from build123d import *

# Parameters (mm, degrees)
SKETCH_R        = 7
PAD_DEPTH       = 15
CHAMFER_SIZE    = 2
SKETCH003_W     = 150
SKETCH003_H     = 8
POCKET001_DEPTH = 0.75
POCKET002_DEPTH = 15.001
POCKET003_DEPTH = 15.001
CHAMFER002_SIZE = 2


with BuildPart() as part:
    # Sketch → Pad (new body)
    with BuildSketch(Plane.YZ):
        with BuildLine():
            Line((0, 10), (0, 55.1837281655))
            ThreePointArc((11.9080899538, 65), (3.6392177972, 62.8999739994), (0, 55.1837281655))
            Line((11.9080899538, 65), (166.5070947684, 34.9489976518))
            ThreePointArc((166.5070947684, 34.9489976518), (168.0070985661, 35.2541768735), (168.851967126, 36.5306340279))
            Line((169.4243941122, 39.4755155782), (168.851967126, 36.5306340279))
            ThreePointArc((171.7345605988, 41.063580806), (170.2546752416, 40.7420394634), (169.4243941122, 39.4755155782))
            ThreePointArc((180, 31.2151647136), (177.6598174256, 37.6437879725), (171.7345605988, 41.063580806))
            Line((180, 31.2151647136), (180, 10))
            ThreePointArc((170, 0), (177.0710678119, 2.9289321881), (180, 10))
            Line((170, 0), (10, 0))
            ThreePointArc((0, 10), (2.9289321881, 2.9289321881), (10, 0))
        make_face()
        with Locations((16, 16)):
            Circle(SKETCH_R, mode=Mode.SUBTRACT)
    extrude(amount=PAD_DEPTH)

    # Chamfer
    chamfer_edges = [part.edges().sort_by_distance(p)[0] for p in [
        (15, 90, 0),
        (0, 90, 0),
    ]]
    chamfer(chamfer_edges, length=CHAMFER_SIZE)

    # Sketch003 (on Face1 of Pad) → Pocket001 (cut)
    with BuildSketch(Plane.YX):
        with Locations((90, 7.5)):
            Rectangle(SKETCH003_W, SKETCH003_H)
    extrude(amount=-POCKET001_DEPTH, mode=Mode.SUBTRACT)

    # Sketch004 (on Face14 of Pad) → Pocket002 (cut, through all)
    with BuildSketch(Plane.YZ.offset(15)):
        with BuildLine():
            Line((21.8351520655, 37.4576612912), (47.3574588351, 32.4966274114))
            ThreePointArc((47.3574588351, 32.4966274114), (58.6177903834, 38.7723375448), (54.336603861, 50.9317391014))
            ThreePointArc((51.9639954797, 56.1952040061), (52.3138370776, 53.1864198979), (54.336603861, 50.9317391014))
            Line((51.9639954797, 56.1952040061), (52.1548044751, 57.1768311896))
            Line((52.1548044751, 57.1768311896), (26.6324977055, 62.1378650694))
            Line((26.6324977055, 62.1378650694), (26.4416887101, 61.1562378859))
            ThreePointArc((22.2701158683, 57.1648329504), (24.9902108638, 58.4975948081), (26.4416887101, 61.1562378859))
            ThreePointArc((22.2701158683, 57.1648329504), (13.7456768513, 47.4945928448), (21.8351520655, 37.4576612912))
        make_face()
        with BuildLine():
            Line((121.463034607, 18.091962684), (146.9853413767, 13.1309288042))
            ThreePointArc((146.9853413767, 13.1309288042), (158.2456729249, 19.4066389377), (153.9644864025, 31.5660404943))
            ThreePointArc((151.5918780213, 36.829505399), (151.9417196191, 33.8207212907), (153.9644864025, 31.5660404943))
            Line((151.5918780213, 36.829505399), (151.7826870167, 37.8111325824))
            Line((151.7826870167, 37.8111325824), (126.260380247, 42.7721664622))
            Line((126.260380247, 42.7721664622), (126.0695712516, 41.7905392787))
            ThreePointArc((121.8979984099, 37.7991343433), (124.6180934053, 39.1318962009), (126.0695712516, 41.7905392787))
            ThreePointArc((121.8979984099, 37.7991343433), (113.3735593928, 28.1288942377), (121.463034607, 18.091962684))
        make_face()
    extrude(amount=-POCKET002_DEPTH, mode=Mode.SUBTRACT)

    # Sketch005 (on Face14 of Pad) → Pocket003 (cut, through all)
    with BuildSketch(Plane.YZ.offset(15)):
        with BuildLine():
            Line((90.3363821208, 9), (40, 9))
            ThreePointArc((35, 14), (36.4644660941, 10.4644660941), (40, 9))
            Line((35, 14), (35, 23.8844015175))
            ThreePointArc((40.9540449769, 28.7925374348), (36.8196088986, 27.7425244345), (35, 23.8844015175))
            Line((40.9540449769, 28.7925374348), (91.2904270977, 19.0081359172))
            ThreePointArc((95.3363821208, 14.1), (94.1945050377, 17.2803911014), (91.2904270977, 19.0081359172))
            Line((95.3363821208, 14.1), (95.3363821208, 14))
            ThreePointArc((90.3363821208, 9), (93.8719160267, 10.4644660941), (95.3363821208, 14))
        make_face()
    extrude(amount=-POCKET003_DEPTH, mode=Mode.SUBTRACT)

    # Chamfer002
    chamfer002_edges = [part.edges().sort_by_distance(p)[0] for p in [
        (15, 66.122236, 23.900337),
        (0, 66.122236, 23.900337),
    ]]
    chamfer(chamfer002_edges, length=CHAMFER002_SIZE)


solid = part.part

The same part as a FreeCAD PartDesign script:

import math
import FreeCAD as App
import Part
import Sketcher

V = App.Vector
Q = App.Units.Quantity


def edges_at(feature, points):
    """Names of the edges that pass closest to the given points."""
    edges = feature.Shape.Edges
    near = lambda p: min(range(len(edges)), key=lambda i: edges[i].distToShape(Part.Vertex(*p))[0])
    return sorted({f"Edge{near(p) + 1}" for p in points})

doc = App.newDocument("Part")
params = doc.addObject("Spreadsheet::Sheet", "Params")
for row, (alias, value) in enumerate([
    ("sketch1_diameter", "14 mm"),
    ("sketch1_radius", "10 mm"),
    ("sketch1_radius2", "2 mm"),
    ("sketch1_width", "160 mm"),
    ("sketch1_length", "3 mm"),
    ("pad1_length", "15 mm"),
    ("chamfer_size", "2 mm"),
    ("sketch2_width", "8 mm"),
    ("sketch2_height", "150 mm"),
    ("pocket1_length", "0.75 mm"),
    ("sketch3_radius", "10 mm"),
    ("sketch3_radius2", "5 mm"),
    ("sketch3_length", "26 mm"),
    ("sketch3_length2", "1 mm"),
    ("sketch4_radius", "5 mm"),
    ("sketch4_height", "0.1 mm"),
    ("chamfer2_size", "2 mm"),
], start=1):
    params.set(f"A{row}", alias)
    params.set(f"B{row}", "=" + value)
    params.setAlias(f"B{row}", alias)

body = doc.addObject("PartDesign::Body", "Body")

sketch1 = doc.addObject("Sketcher::SketchObject", "Sketch")
body.addObject(sketch1)
sketch1.AttachmentSupport = (doc.YZ_Plane, [""])
sketch1.MapMode = "FlatFace"
sketch1.addGeometry([
    Part.LineSegment(V(0, 55.183728, 0), V(0, 10, 0)),
    Part.ArcOfCircle(Part.Circle(V(10, 10, 0), V(0, 0, 1), 10), math.radians(180), math.radians(270)),
    Part.LineSegment(V(10, 0, 0), V(170, 0, 0)),
    Part.ArcOfCircle(Part.Circle(V(170, 10, 0), V(0, 0, 1), 10), math.radians(-90), math.radians(0)),
    Part.LineSegment(V(180, 10, 0), V(180, 31.215165, 0)),
    Part.ArcOfCircle(Part.Circle(V(170, 31.215165, 0), V(0, 0, 1), 10), math.radians(0), math.radians(80.011177)),
    Part.ArcOfCircle(Part.Circle(V(171.387648, 39.093898, 0), V(0, 0, 1), 2), math.radians(80.011177), math.radians(169)),
    Part.LineSegment(V(169.424394, 39.475516, 0), V(168.851967, 36.530634, 0)),
    Part.ArcOfCircle(Part.Circle(V(166.888713, 36.912252, 0), V(0, 0, 1), 2), math.radians(-101), math.radians(-11)),
    Part.LineSegment(V(166.507095, 34.948998, 0), V(11.90809, 65, 0)),
    Part.ArcOfCircle(Part.Circle(V(10, 55.183728, 0), V(0, 0, 1), 10), math.radians(79), math.radians(180)),
    Part.Circle(V(16, 16, 0), V(0, 0, 1), 7),
], False)
sketch1.addConstraint([
    Sketcher.Constraint("Tangent", 0, 2, 1, 1),
    Sketcher.Constraint("Tangent", 1, 2, 2, 1),
    Sketcher.Constraint("Tangent", 2, 2, 3, 1),
    Sketcher.Constraint("Tangent", 3, 2, 4, 1),
    Sketcher.Constraint("Tangent", 4, 2, 5, 1),
    Sketcher.Constraint("Tangent", 5, 2, 6, 1),
    Sketcher.Constraint("Tangent", 6, 2, 7, 1),
    Sketcher.Constraint("Tangent", 7, 2, 8, 2),
    Sketcher.Constraint("Tangent", 8, 1, 9, 1),
    Sketcher.Constraint("Tangent", 9, 2, 10, 1),
    Sketcher.Constraint("Tangent", 10, 2, 0, 1),
    Sketcher.Constraint("Vertical", 0),
    Sketcher.Constraint("Horizontal", 2),
    Sketcher.Constraint("Vertical", 4),
    Sketcher.Constraint("Equal", 1, 3),
    Sketcher.Constraint("Equal", 3, 5),
    Sketcher.Constraint("Equal", 6, 8),
    Sketcher.Constraint("Equal", 5, 10),
    Sketcher.Constraint("PointOnObject", 0, 2, -2),
    Sketcher.Constraint("PointOnObject", 1, 2, -1),
    Sketcher.Constraint("Perpendicular", 7, 9),
    Sketcher.Constraint("Diameter", 11, 14.0),
    Sketcher.Constraint("Radius", 1, 10.0),
    Sketcher.Constraint("Radius", 6, 2.0),
    Sketcher.Constraint("DistanceX", 2, 1, 2, 2, 160.0),
    Sketcher.Constraint("Angle", 7, Q("-101 deg")),
    Sketcher.Constraint("Distance", 7, 3.0),
    Sketcher.Constraint("DistanceX", -1, 1, 11, 3, 16.0),
    Sketcher.Constraint("DistanceY", -1, 1, 11, 3, 16.0),
    Sketcher.Constraint("DistanceY", -1, 1, 9, 2, 65.0),
    Sketcher.Constraint("DistanceY", 4, 1, 4, 2, 21.215165),
])
sketch1.setExpression("Constraints[21]", "Params.sketch1_diameter")
sketch1.setExpression("Constraints[22]", "Params.sketch1_radius")
sketch1.setExpression("Constraints[23]", "Params.sketch1_radius2")
sketch1.setExpression("Constraints[24]", "Params.sketch1_width")
sketch1.setExpression("Constraints[26]", "Params.sketch1_length")
pad1 = doc.addObject("PartDesign::Pad", "Pad")
body.addObject(pad1)
pad1.Profile = sketch1
pad1.setExpression("Length", "Params.pad1_length")
doc.recompute()

chamfer = doc.addObject("PartDesign::Chamfer", "Chamfer")
body.addObject(chamfer)
chamfer.Base = (pad1, edges_at(pad1, [(15, 90, 0), (0, 90, 0)]))
chamfer.setExpression("Size", "Params.chamfer_size")

sketch2 = doc.addObject("Sketcher::SketchObject", "Sketch001")
body.addObject(sketch2)
sketch2.AttachmentSupport = (doc.XY_Plane, [""])
sketch2.MapMode = "FlatFace"
sketch2.addGeometry([
    Part.LineSegment(V(11.5, 15, 0), V(3.5, 15, 0)),
    Part.LineSegment(V(3.5, 15, 0), V(3.5, 165, 0)),
    Part.LineSegment(V(3.5, 165, 0), V(11.5, 165, 0)),
    Part.LineSegment(V(11.5, 165, 0), V(11.5, 15, 0)),
], False)
sketch2.addConstraint([
    Sketcher.Constraint("Coincident", 0, 2, 1, 1),
    Sketcher.Constraint("Coincident", 1, 2, 2, 1),
    Sketcher.Constraint("Coincident", 2, 2, 3, 1),
    Sketcher.Constraint("Coincident", 3, 2, 0, 1),
    Sketcher.Constraint("Horizontal", 0),
    Sketcher.Constraint("Vertical", 1),
    Sketcher.Constraint("Horizontal", 2),
    Sketcher.Constraint("Vertical", 3),
    Sketcher.Constraint("DistanceX", 0, 2, 0, 1, 8.0),
    Sketcher.Constraint("DistanceY", 1, 1, 1, 2, 150.0),
    Sketcher.Constraint("DistanceY", -1, 1, 0, 2, 15.0),
    Sketcher.Constraint("DistanceX", -1, 1, 0, 2, 3.5),
])
sketch2.setExpression("Constraints[8]", "Params.sketch2_width")
sketch2.setExpression("Constraints[9]", "Params.sketch2_height")
pocket1 = doc.addObject("PartDesign::Pocket", "Pocket")
body.addObject(pocket1)
pocket1.Profile = sketch2
pocket1.setExpression("Length", "Params.pocket1_length")
pocket1.Reversed = True

sketch3 = doc.addObject("Sketcher::SketchObject", "Sketch002")
body.addObject(sketch3)
sketch3.AttachmentSupport = (doc.YZ_Plane, [""])
sketch3.MapMode = "FlatFace"
sketch3.AttachmentOffset = App.Placement(V(0, 0, 15), App.Rotation())
sketch3.addGeometry([
    Part.LineSegment(V(21.835152, 37.457661, 0), V(47.357459, 32.496627, 0)),
    Part.ArcOfCircle(Part.Circle(V(49.265549, 42.312899, 0), V(0, 0, 1), 10), math.radians(-101), math.radians(59.528779)),
    Part.ArcOfCircle(Part.Circle(V(56.872131, 55.241159, 0), V(0, 0, 1), 5), math.radians(169), math.radians(239.528779)),
    Part.LineSegment(V(51.963995, 56.195204, 0), V(52.154804, 57.176831, 0)),
    Part.LineSegment(V(52.154804, 57.176831, 0), V(26.632498, 62.137865, 0)),
    Part.LineSegment(V(26.632498, 62.137865, 0), V(26.441689, 61.156238, 0)),
    Part.ArcOfCircle(Part.Circle(V(21.533553, 62.110283, 0), V(0, 0, 1), 5), math.radians(-81.528779), math.radians(-11)),
    Part.ArcOfCircle(Part.Circle(V(23.743242, 47.273933, 0), V(0, 0, 1), 10), math.radians(98.471221), math.radians(259)),
    Part.LineSegment(V(121.463035, 18.091963, 0), V(146.985341, 13.130929, 0)),
    Part.ArcOfCircle(Part.Circle(V(148.893431, 22.947201, 0), V(0, 0, 1), 10), math.radians(-101), math.radians(59.528779)),
    Part.ArcOfCircle(Part.Circle(V(156.500014, 35.87546, 0), V(0, 0, 1), 5), math.radians(169), math.radians(239.528779)),
    Part.LineSegment(V(151.591878, 36.829505, 0), V(151.782687, 37.811133, 0)),
    Part.LineSegment(V(151.782687, 37.811133, 0), V(126.26038, 42.772166, 0)),
    Part.LineSegment(V(126.26038, 42.772166, 0), V(126.069571, 41.790539, 0)),
    Part.ArcOfCircle(Part.Circle(V(121.161435, 42.744584, 0), V(0, 0, 1), 5), math.radians(-81.528779), math.radians(-11)),
    Part.ArcOfCircle(Part.Circle(V(123.371125, 27.908235, 0), V(0, 0, 1), 10), math.radians(98.471221), math.radians(259)),
], False)
sketch3.addConstraint([
    Sketcher.Constraint("Tangent", 0, 2, 1, 1),
    Sketcher.Constraint("Tangent", 1, 2, 2, 2),
    Sketcher.Constraint("Tangent", 2, 1, 3, 1),
    Sketcher.Constraint("Coincident", 3, 2, 4, 1),
    Sketcher.Constraint("Coincident", 4, 2, 5, 1),
    Sketcher.Constraint("Tangent", 5, 2, 6, 2),
    Sketcher.Constraint("Tangent", 6, 1, 7, 1),
    Sketcher.Constraint("Tangent", 7, 2, 0, 1),
    Sketcher.Constraint("Tangent", 8, 2, 9, 1),
    Sketcher.Constraint("Tangent", 9, 2, 10, 2),
    Sketcher.Constraint("Tangent", 10, 1, 11, 1),
    Sketcher.Constraint("Coincident", 11, 2, 12, 1),
    Sketcher.Constraint("Coincident", 12, 2, 13, 1),
    Sketcher.Constraint("Tangent", 13, 2, 14, 2),
    Sketcher.Constraint("Tangent", 14, 1, 15, 1),
    Sketcher.Constraint("Tangent", 15, 2, 8, 1),
    Sketcher.Constraint("Equal", 2, 6),
    Sketcher.Constraint("Equal", 1, 7),
    Sketcher.Constraint("Equal", 7, 9),
    Sketcher.Constraint("Equal", 6, 10),
    Sketcher.Constraint("Equal", 10, 14),
    Sketcher.Constraint("Equal", 9, 15),
    Sketcher.Constraint("Perpendicular", 0, 3),
    Sketcher.Constraint("Perpendicular", 3, 4),
    Sketcher.Constraint("Perpendicular", 4, 5),
    Sketcher.Constraint("Perpendicular", 5, 8),
    Sketcher.Constraint("Perpendicular", 8, 11),
    Sketcher.Constraint("Perpendicular", 11, 12),
    Sketcher.Constraint("Perpendicular", 12, 13),
    Sketcher.Constraint("Equal", 0, 4),
    Sketcher.Constraint("Equal", 3, 5),
    Sketcher.Constraint("Equal", 4, 8),
    Sketcher.Constraint("Equal", 5, 11),
    Sketcher.Constraint("Equal", 8, 12),
    Sketcher.Constraint("Equal", 11, 13),
    Sketcher.Constraint("Radius", 1, 10.0),
    Sketcher.Constraint("Radius", 2, 5.0),
    Sketcher.Constraint("Angle", 0, Q("-11 deg")),
    Sketcher.Constraint("Distance", 0, 26.0),
    Sketcher.Constraint("Distance", 3, 1.0),
    Sketcher.Constraint("DistanceX", -1, 1, 14, 1, 121.897998),
    Sketcher.Constraint("DistanceY", -1, 1, 1, 3, 42.312899),
    Sketcher.Constraint("DistanceY", -1, 1, 9, 3, 22.947201),
    Sketcher.Constraint("DistanceX", 2, 3, 9, 3, 92.0213),
])
sketch3.setExpression("Constraints[35]", "Params.sketch3_radius")
sketch3.setExpression("Constraints[36]", "Params.sketch3_radius2")
sketch3.setExpression("Constraints[38]", "Params.sketch3_length")
sketch3.setExpression("Constraints[39]", "Params.sketch3_length2")
pocket2 = doc.addObject("PartDesign::Pocket", "Pocket001")
body.addObject(pocket2)
pocket2.Profile = sketch3
pocket2.Type = "ThroughAll"

sketch4 = doc.addObject("Sketcher::SketchObject", "Sketch003")
body.addObject(sketch4)
sketch4.AttachmentSupport = (doc.YZ_Plane, [""])
sketch4.MapMode = "FlatFace"
sketch4.AttachmentOffset = App.Placement(V(0, 0, 15), App.Rotation())
sketch4.addGeometry([
    Part.LineSegment(V(40, 9, 0), V(90.336382, 9, 0)),
    Part.ArcOfCircle(Part.Circle(V(90.336382, 14, 0), V(0, 0, 1), 5), math.radians(-90), math.radians(0)),
    Part.LineSegment(V(95.336382, 14, 0), V(95.336382, 14.1, 0)),
    Part.ArcOfCircle(Part.Circle(V(90.336382, 14.1, 0), V(0, 0, 1), 5), math.radians(0), math.radians(79)),
    Part.LineSegment(V(91.290427, 19.008136, 0), V(40.954045, 28.792537, 0)),
    Part.ArcOfCircle(Part.Circle(V(40, 23.884402, 0), V(0, 0, 1), 5), math.radians(79), math.radians(180)),
    Part.LineSegment(V(35, 23.884402, 0), V(35, 14, 0)),
    Part.ArcOfCircle(Part.Circle(V(40, 14, 0), V(0, 0, 1), 5), math.radians(180), math.radians(270)),
], False)
sketch4.addConstraint([
    Sketcher.Constraint("Tangent", 0, 2, 1, 1),
    Sketcher.Constraint("Tangent", 1, 2, 2, 1),
    Sketcher.Constraint("Tangent", 2, 2, 3, 1),
    Sketcher.Constraint("Tangent", 3, 2, 4, 1),
    Sketcher.Constraint("Tangent", 4, 2, 5, 1),
    Sketcher.Constraint("Tangent", 5, 2, 6, 1),
    Sketcher.Constraint("Tangent", 6, 2, 7, 1),
    Sketcher.Constraint("Tangent", 7, 2, 0, 1),
    Sketcher.Constraint("Horizontal", 0),
    Sketcher.Constraint("Vertical", 2),
    Sketcher.Constraint("Vertical", 6),
    Sketcher.Constraint("Equal", 1, 3),
    Sketcher.Constraint("Equal", 3, 5),
    Sketcher.Constraint("Equal", 5, 7),
    Sketcher.Constraint("Radius", 1, 5.0),
    Sketcher.Constraint("Angle", 4, Q("169 deg")),
    Sketcher.Constraint("DistanceY", 2, 1, 2, 2, 0.1),
    Sketcher.Constraint("DistanceY", -1, 1, 1, 3, 14.0),
    Sketcher.Constraint("DistanceX", -1, 1, 5, 3, 40.0),
    Sketcher.Constraint("DistanceY", 6, 2, 6, 1, 9.884402),
])
sketch4.setExpression("Constraints[14]", "Params.sketch4_radius")
sketch4.setExpression("Constraints[16]", "Params.sketch4_height")
pocket3 = doc.addObject("PartDesign::Pocket", "Pocket002")
body.addObject(pocket3)
pocket3.Profile = sketch4
pocket3.Type = "ThroughAll"
doc.recompute()

chamfer2 = doc.addObject("PartDesign::Chamfer", "Chamfer001")
body.addObject(chamfer2)
chamfer2.Base = (pocket3, edges_at(pocket3, [(15, 66.122, 23.9), (0, 66.122, 23.9)]))
chamfer2.setExpression("Size", "Params.chamfer2_size")

doc.recompute()
